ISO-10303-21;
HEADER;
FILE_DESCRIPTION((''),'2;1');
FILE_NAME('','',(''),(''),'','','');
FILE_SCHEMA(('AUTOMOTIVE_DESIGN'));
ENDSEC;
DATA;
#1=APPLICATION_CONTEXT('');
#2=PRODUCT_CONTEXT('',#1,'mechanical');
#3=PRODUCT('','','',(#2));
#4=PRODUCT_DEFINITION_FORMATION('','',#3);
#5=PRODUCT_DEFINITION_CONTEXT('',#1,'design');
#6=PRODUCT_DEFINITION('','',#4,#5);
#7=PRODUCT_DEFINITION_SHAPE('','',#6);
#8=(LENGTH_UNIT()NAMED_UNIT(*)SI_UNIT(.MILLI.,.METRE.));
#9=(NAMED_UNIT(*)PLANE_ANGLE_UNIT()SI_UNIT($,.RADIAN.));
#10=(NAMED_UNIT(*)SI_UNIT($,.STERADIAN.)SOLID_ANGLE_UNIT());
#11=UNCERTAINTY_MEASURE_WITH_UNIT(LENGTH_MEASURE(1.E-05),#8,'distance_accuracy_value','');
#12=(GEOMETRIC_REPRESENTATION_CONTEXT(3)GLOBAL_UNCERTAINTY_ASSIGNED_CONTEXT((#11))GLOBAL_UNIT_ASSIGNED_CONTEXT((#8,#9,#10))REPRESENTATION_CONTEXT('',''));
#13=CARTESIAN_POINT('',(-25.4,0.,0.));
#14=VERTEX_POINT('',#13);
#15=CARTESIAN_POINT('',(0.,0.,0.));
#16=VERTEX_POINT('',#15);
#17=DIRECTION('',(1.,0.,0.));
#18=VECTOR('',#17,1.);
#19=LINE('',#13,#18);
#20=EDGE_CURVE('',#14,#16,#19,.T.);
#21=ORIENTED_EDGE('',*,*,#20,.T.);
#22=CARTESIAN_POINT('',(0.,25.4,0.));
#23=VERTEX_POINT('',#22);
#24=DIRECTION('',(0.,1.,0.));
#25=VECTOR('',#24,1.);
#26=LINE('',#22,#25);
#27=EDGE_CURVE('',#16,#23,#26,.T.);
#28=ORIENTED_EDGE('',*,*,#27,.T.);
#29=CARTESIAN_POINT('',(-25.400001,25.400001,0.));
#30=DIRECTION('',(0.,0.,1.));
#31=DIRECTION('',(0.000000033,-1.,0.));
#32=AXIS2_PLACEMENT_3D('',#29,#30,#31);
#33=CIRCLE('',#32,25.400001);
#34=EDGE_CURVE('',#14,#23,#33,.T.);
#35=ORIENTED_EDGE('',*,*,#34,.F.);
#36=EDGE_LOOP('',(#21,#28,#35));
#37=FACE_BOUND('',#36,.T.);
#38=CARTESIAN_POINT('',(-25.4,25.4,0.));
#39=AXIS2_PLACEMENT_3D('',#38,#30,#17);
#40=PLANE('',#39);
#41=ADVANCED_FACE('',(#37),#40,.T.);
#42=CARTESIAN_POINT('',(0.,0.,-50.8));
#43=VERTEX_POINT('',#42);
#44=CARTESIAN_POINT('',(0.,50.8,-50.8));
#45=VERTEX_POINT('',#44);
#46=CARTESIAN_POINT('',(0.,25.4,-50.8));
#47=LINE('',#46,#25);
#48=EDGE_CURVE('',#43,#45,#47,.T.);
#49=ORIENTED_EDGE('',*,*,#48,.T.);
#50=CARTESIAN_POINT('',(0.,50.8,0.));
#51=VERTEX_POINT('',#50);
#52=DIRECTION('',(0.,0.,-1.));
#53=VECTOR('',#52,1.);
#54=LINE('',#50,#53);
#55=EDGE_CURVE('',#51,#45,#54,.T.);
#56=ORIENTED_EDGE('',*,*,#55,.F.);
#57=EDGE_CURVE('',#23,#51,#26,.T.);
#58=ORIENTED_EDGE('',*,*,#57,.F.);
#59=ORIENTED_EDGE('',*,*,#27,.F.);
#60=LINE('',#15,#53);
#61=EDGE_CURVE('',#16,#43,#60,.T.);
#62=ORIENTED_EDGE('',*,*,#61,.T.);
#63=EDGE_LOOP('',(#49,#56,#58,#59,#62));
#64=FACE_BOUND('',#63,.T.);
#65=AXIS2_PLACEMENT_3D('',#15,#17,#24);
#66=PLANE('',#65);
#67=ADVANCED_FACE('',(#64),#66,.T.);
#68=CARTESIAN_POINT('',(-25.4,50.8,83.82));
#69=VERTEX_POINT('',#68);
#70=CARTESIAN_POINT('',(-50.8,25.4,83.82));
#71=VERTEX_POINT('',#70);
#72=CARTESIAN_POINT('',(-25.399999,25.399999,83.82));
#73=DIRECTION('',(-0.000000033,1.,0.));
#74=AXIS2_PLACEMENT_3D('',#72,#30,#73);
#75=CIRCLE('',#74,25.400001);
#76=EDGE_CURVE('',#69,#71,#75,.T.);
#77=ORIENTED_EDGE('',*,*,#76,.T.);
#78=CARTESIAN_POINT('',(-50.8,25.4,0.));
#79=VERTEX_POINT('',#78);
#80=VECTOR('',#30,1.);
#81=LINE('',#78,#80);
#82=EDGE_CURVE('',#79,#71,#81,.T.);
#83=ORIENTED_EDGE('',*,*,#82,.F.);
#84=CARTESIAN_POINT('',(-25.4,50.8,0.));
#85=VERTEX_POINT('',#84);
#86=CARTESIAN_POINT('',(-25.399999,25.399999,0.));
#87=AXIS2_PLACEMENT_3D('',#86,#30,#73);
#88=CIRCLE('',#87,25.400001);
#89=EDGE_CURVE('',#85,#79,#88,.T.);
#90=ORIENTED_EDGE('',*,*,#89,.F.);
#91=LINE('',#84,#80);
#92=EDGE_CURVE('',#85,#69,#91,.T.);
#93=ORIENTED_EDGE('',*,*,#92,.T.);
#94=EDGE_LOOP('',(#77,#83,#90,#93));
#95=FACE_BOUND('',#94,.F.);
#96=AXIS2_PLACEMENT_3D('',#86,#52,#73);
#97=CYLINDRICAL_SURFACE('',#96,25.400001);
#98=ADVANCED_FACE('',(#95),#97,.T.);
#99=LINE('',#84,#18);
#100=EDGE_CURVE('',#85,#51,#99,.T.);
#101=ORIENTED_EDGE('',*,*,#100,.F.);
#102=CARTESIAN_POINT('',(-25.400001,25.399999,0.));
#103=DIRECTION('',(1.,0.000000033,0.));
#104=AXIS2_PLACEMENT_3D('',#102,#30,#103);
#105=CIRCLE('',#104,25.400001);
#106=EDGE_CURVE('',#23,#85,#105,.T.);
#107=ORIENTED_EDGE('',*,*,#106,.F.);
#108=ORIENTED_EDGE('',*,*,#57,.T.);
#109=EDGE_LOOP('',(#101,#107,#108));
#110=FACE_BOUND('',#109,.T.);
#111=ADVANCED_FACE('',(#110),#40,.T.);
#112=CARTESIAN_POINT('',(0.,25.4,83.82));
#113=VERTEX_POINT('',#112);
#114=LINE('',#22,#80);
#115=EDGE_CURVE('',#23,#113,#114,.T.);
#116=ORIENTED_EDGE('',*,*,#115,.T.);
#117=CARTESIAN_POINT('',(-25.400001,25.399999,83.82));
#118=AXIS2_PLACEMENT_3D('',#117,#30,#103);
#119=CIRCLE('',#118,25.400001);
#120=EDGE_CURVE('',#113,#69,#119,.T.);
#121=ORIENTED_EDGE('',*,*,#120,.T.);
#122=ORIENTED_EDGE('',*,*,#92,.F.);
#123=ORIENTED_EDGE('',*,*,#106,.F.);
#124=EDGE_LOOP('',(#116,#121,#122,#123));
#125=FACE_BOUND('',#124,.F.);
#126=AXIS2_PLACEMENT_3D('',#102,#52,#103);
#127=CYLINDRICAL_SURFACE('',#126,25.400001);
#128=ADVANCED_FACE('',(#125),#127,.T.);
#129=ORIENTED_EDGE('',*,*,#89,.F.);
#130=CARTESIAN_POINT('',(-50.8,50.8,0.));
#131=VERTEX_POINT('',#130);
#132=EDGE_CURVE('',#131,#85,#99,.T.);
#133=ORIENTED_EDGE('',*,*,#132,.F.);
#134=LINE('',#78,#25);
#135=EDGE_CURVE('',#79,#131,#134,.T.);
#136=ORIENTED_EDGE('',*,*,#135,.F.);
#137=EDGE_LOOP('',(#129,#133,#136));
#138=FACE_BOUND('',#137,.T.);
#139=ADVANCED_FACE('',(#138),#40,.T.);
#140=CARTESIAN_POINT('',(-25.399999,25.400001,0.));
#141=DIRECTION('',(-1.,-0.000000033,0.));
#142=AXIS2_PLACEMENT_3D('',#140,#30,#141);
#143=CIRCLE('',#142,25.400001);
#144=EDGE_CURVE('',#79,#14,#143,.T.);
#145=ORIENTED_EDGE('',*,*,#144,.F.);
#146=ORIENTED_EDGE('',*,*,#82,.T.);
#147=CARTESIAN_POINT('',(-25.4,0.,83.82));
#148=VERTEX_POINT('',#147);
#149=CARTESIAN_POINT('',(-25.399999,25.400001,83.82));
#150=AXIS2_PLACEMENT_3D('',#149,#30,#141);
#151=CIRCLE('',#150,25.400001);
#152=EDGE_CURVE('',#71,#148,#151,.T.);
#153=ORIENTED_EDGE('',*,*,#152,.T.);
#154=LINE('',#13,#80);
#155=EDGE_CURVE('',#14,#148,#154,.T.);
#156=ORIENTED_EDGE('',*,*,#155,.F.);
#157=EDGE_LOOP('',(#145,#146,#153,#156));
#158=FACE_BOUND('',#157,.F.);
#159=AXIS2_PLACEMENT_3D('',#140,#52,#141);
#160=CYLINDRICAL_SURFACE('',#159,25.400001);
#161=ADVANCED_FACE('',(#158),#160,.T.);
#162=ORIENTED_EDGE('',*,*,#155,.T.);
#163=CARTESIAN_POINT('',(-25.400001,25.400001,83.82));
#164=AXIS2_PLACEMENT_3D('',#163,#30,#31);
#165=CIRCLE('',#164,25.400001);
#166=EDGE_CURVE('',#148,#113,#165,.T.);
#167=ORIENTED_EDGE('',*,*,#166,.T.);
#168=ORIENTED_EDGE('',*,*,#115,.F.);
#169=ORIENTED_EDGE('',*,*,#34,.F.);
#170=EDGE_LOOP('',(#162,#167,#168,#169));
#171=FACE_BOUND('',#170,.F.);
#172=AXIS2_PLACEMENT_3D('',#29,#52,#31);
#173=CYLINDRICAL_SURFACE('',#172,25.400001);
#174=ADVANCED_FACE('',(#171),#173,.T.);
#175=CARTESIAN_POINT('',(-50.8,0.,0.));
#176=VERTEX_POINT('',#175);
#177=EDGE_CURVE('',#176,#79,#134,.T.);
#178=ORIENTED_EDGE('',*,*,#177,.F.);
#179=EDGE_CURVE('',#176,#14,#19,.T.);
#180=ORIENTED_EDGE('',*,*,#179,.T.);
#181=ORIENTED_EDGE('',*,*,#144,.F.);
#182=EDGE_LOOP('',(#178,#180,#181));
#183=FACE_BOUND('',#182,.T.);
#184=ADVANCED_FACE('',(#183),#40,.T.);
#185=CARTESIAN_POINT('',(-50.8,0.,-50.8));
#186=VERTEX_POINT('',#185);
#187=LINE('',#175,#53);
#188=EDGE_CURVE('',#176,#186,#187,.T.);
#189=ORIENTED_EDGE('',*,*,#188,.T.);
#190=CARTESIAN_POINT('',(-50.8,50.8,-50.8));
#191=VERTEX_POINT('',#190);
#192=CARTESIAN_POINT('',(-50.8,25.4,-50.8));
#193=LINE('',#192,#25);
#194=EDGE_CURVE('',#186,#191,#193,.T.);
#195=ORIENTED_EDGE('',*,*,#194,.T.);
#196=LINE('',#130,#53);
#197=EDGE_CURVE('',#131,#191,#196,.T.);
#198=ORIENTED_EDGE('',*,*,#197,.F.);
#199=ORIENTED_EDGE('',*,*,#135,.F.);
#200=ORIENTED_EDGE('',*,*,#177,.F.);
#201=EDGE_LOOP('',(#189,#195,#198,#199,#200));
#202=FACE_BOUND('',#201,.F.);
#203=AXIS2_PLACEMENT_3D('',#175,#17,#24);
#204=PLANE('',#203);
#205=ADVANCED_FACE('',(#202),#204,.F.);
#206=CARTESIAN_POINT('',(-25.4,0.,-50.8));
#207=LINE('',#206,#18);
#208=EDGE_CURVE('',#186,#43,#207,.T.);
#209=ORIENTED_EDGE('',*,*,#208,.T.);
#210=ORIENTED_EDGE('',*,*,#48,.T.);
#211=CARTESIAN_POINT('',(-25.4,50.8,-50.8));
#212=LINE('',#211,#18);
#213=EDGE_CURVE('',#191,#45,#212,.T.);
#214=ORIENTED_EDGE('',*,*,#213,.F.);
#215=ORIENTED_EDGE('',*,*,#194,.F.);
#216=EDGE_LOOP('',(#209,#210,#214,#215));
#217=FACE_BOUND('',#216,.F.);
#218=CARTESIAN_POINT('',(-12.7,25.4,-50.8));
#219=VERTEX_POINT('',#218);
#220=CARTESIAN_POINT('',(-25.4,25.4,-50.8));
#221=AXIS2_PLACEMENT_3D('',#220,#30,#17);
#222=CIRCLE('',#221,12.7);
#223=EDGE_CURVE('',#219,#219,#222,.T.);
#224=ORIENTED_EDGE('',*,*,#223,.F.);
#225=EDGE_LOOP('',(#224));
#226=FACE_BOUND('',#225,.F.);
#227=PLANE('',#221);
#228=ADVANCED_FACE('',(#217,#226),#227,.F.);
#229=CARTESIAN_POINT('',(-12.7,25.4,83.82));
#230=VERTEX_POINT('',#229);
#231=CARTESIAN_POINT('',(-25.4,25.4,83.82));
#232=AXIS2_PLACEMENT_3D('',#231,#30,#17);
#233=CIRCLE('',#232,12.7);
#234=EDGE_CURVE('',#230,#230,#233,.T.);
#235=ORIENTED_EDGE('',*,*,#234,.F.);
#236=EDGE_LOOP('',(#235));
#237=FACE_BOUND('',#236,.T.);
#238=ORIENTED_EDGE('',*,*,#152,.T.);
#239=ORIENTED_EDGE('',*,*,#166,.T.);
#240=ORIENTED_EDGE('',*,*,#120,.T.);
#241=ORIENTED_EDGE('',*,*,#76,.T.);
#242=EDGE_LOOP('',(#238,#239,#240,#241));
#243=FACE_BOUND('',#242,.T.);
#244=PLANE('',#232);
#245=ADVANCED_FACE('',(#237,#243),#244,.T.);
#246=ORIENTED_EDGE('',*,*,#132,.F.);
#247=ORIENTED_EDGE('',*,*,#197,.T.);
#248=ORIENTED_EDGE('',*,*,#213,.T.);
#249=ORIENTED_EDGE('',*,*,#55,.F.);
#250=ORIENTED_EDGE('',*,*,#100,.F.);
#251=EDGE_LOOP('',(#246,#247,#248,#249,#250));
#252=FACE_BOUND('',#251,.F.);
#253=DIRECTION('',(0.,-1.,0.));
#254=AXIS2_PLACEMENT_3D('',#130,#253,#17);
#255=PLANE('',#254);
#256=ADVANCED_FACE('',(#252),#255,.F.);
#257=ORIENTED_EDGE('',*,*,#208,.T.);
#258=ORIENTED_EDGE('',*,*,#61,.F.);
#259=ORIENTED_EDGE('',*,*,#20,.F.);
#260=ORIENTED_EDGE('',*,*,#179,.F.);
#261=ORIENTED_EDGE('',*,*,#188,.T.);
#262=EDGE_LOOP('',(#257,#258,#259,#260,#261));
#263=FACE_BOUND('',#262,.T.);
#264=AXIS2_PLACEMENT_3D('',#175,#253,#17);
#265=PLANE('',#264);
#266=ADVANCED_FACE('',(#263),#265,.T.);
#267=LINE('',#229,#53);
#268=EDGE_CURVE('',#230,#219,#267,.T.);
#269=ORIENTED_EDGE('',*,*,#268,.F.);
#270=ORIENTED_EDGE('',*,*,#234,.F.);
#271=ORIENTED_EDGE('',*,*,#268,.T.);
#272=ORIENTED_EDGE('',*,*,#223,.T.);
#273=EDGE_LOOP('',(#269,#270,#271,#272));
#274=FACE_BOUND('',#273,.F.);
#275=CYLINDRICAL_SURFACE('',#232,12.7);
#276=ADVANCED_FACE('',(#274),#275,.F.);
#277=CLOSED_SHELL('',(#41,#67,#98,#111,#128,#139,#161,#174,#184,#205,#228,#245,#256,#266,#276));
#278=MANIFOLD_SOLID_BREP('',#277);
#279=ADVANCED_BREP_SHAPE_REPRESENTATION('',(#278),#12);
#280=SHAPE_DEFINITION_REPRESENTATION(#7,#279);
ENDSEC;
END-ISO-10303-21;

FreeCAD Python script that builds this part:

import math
import FreeCAD as App
import Part
import Sketcher
from FreeCAD import Vector
Q = App.Units.Quantity


def add_polygon(sketch, points):
    """Adds a closed chain of lines whose ends are joined by coincident constraints."""
    first, n = sketch.GeometryCount, len(points)
    for a, b in zip(points, points[1:] + points[:1]):
        sketch.addGeometry(Part.LineSegment(App.Vector(*a, 0), App.Vector(*b, 0)), False)
    for i in range(n):
        sketch.addConstraint(Sketcher.Constraint("Coincident", first + i, 2, first + (i + 1) % n, 1))

doc = App.newDocument("Part")
body = doc.addObject("PartDesign::Body", "Body")

sketch1 = body.newObject("Sketcher::SketchObject", "Sketch")
sketch1.AttachmentSupport = (doc.getObject("XY_Plane"), [""])
sketch1.MapMode = "FlatFace"
add_polygon(sketch1, [(-51, 51), (-51, 0), (0, 0), (0, 51)])
sketch1.addConstraint([
    Sketcher.Constraint("Vertical", 0),
    Sketcher.Constraint("Horizontal", 1),
    Sketcher.Constraint("Vertical", 2),
    Sketcher.Constraint("Horizontal", 3),
    Sketcher.Constraint("Coincident", 1, 2, -1, 1),
    Sketcher.Constraint("Equal", 3, 0),
    Sketcher.Constraint("DistanceX", 1, 1, 1, 2, Q("2 in")),
])
pad1 = body.newObject("PartDesign::Pad", "Pad")
pad1.Profile = sketch1
pad1.Length = Q("2 in")
pad1.Reversed = True

sketch2 = body.newObject("Sketcher::SketchObject", "Sketch001")
sketch2.AttachmentSupport = (doc.getObject("XY_Plane"), [""])
sketch2.MapMode = "FlatFace"
sketch2.addGeometry([
    Part.ArcOfCircle(Part.Circle(Vector(-25, 25, 0), Vector(0, 0, 1), 25), math.radians(-90), math.radians(0)),
    Part.ArcOfCircle(Part.Circle(Vector(-25, 25, 0), Vector(0, 0, 1), 25), math.radians(0), math.radians(90)),
    Part.ArcOfCircle(Part.Circle(Vector(-25, 25, 0), Vector(0, 0, 1), 25), math.radians(90), math.radians(180)),
    Part.ArcOfCircle(Part.Circle(Vector(-25, 25, 0), Vector(0, 0, 1), 25), math.radians(-180), math.radians(-90)),
], False)
sketch2.addConstraint([
    Sketcher.Constraint("Tangent", 0, 2, 1, 1),
    Sketcher.Constraint("Tangent", 1, 2, 2, 1),
    Sketcher.Constraint("Tangent", 2, 2, 3, 1),
    Sketcher.Constraint("Tangent", 3, 2, 0, 1),
    Sketcher.Constraint("Equal", 0, 1),
    Sketcher.Constraint("PointOnObject", 0, 2, -2),
    Sketcher.Constraint("PointOnObject", 3, 2, -1),
    Sketcher.Constraint("Horizontal", 3, 3, 0, 2),
    Sketcher.Constraint("Horizontal", 0, 2, 2, 2),
    Sketcher.Constraint("Vertical", 3, 3, 1, 2),
    Sketcher.Constraint("Vertical", 1, 2, 3, 2),
    Sketcher.Constraint("Radius", 0, Q("1 in")),
])
pad2 = body.newObject("PartDesign::Pad", "Pad001")
pad2.Profile = sketch2
pad2.Length = Q("3.3 in")

sketch3 = body.newObject("Sketcher::SketchObject", "Sketch002")
sketch3.AttachmentSupport = (doc.getObject("XY_Plane"), [""])
sketch3.MapMode = "FlatFace"
sketch3.AttachmentOffset = App.Placement(Vector(0, 0, 3.3 * 25.4), App.Rotation())
sketch3.addGeometry(Part.Circle(Vector(-25, 25, 0), Vector(0, 0, 1), 13), False)
sketch3.addConstraint([
    Sketcher.Constraint("Diameter", 0, Q("1 in")),
    Sketcher.Constraint("DistanceX", 0, 3, -1, 1, Q("1 in")),
    Sketcher.Constraint("DistanceY", -1, 1, 0, 3, Q("1 in")),
])
pocket1 = body.newObject("PartDesign::Pocket", "Pocket")
pocket1.Profile = sketch3
pocket1.Length = Q("5.66 in")

doc.recompute()
